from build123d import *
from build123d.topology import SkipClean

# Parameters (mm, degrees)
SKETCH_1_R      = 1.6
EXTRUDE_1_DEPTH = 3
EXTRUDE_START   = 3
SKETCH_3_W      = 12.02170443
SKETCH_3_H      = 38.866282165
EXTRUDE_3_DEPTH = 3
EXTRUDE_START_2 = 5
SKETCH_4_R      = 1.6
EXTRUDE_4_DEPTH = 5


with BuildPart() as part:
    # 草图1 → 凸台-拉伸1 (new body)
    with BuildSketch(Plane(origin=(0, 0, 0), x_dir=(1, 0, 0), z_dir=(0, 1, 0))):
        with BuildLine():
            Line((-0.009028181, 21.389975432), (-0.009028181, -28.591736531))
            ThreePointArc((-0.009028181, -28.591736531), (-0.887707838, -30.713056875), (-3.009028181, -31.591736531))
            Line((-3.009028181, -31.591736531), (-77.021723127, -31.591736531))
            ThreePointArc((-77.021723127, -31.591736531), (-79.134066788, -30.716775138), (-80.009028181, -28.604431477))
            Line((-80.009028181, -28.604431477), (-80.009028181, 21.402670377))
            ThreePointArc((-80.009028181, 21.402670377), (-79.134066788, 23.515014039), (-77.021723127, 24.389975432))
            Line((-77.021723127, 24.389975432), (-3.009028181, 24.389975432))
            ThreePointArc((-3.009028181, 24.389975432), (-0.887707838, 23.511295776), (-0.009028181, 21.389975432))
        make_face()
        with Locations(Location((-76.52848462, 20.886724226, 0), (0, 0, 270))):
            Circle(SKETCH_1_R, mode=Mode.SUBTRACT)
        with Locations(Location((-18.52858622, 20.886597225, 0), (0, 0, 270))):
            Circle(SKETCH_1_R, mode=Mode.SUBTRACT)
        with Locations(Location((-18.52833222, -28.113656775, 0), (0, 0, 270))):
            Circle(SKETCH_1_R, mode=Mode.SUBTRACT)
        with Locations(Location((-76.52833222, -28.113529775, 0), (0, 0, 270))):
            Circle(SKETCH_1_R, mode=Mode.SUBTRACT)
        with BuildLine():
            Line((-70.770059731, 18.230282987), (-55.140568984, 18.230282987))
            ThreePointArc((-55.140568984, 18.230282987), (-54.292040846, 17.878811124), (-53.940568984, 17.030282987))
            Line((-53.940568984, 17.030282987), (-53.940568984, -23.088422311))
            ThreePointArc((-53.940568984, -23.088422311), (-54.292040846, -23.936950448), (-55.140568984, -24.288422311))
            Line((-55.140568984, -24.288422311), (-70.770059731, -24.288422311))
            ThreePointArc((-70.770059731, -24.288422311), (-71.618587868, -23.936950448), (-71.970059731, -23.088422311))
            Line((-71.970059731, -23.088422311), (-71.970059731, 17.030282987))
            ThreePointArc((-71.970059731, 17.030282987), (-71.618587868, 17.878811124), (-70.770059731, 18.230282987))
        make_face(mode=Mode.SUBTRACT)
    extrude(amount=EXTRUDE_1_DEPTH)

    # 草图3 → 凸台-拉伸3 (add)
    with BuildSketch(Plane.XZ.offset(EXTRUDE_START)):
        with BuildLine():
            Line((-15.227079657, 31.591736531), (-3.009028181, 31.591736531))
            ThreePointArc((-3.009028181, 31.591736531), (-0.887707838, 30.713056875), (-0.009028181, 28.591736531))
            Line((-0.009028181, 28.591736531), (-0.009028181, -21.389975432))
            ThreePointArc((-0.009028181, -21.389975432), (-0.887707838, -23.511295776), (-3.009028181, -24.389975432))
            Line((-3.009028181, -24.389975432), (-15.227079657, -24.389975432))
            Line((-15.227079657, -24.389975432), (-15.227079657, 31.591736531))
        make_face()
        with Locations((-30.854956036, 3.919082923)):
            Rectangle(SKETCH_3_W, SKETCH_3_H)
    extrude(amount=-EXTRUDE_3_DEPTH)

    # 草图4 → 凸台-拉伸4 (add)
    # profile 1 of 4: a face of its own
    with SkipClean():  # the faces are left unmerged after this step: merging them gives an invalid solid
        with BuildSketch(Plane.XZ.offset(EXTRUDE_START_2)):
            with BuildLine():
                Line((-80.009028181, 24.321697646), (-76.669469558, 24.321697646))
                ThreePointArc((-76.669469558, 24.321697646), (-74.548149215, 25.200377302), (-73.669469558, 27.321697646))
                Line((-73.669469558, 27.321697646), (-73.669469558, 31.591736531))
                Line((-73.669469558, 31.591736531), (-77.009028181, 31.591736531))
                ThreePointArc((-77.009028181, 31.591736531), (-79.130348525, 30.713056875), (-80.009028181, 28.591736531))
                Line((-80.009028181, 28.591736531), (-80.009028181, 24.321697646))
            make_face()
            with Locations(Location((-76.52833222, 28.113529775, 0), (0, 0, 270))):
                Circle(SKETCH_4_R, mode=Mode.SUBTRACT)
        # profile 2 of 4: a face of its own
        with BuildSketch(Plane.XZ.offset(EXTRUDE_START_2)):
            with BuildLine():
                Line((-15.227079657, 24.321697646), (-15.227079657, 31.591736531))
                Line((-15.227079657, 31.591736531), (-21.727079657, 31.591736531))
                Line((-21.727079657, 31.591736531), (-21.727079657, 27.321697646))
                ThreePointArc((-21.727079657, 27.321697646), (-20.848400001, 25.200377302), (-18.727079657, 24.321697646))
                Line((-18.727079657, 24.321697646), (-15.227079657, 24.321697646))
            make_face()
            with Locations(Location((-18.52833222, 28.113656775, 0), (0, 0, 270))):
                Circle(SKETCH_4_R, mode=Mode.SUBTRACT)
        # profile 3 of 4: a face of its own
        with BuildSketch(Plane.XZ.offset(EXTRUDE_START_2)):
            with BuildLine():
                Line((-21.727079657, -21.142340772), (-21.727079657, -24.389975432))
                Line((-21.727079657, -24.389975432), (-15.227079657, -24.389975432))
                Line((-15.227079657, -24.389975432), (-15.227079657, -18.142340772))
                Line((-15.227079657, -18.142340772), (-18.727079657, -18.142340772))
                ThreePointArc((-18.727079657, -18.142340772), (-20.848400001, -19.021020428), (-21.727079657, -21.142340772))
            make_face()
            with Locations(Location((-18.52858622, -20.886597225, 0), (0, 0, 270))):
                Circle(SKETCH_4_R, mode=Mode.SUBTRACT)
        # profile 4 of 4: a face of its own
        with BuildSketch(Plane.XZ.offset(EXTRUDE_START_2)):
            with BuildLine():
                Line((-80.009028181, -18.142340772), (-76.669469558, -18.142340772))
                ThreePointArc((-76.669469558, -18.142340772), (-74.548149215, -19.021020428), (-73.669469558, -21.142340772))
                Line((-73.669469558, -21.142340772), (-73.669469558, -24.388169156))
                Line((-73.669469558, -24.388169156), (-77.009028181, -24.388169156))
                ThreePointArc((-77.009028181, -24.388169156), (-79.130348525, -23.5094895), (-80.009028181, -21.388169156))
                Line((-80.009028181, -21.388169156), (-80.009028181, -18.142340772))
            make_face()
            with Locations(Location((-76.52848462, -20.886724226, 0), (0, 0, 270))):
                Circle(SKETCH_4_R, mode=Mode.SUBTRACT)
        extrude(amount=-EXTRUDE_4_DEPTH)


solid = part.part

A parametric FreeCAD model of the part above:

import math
import FreeCAD as App
import Part
import Sketcher
Q = App.Units.Quantity

doc = App.newDocument("Part")
body = doc.addObject("PartDesign::Body", "Body")

# Sketch on XZ plane
sketch1 = body.newObject("Sketcher::SketchObject", "Sketch")
sketch1.AttachmentSupport = (doc.getObject("XZ_Plane"), [""])
sketch1.MapMode = "FlatFace"
sketch1.addGeometry([
    Part.LineSegment(App.Vector(-0.009028, 28.591737, 0), App.Vector(-0.009028, -21.389975, 0)),  # 0
    Part.ArcOfCircle(Part.Circle(App.Vector(-3.009028, -21.389975, 0), App.Vector(0, 0, 1), 3), math.radians(-90), math.radians(0)),  # 1
    Part.LineSegment(App.Vector(-3.009028, -24.389975, 0), App.Vector(-77.021723, -24.389975, 0)),  # 2
    Part.ArcOfCircle(Part.Circle(App.Vector(-77.021723, -21.40267, 0), App.Vector(0, 0, 1), 2.987305), math.radians(180), math.radians(270)),  # 3
    Part.LineSegment(App.Vector(-80.009028, -21.40267, 0), App.Vector(-80.009028, 28.604431, 0)),  # 4
    Part.ArcOfCircle(Part.Circle(App.Vector(-77.021723, 28.604431, 0), App.Vector(0, 0, 1), 2.987305), math.radians(90), math.radians(180)),  # 5
    Part.LineSegment(App.Vector(-77.021723, 31.591737, 0), App.Vector(-3.009028, 31.591737, 0)),  # 6
    Part.ArcOfCircle(Part.Circle(App.Vector(-3.009028, 28.591737, 0), App.Vector(0, 0, 1), 3), math.radians(0), math.radians(90)),  # 7
    Part.Circle(App.Vector(-18.528332, 28.113657, 0), App.Vector(0, 0, 1), 1.6),  # 8
    Part.Circle(App.Vector(-76.528332, 28.11353, 0), App.Vector(0, 0, 1), 1.6),  # 9
    Part.Circle(App.Vector(-18.528586, -20.886597, 0), App.Vector(0, 0, 1), 1.6),  # 10
    Part.LineSegment(App.Vector(-70.77006, -18.230283, 0), App.Vector(-55.140569, -18.230283, 0)),  # 11
    Part.ArcOfCircle(Part.Circle(App.Vector(-55.140569, -17.030283, 0), App.Vector(0, 0, 1), 1.2), math.radians(-90), math.radians(0)),  # 12
    Part.LineSegment(App.Vector(-53.940569, -17.030283, 0), App.Vector(-53.940569, 23.088422, 0)),  # 13
    Part.ArcOfCircle(Part.Circle(App.Vector(-55.140569, 23.088422, 0), App.Vector(0, 0, 1), 1.2), math.radians(0), math.radians(90)),  # 14
    Part.LineSegment(App.Vector(-55.140569, 24.288422, 0), App.Vector(-70.77006, 24.288422, 0)),  # 15
    Part.ArcOfCircle(Part.Circle(App.Vector(-70.77006, 23.088422, 0), App.Vector(0, 0, 1), 1.2), math.radians(90), math.radians(180)),  # 16
    Part.LineSegment(App.Vector(-71.97006, 23.088422, 0), App.Vector(-71.97006, -17.030283, 0)),  # 17
    Part.ArcOfCircle(Part.Circle(App.Vector(-70.77006, -17.030283, 0), App.Vector(0, 0, 1), 1.2), math.radians(-180), math.radians(-90)),  # 18
    Part.Circle(App.Vector(-76.528485, -20.886724, 0), App.Vector(0, 0, 1), 1.6),  # 19
], False)
sketch1.addConstraint([
    Sketcher.Constraint("Tangent", 0, 2, 1, 2),
    Sketcher.Constraint("Tangent", 1, 1, 2, 1),
    Sketcher.Constraint("Tangent", 2, 2, 3, 2),
    Sketcher.Constraint("Tangent", 3, 1, 4, 1),
    Sketcher.Constraint("Tangent", 4, 2, 5, 2),
    Sketcher.Constraint("Tangent", 5, 1, 6, 1),
    Sketcher.Constraint("Tangent", 6, 2, 7, 2),
    Sketcher.Constraint("Tangent", 7, 1, 0, 1),
    Sketcher.Constraint("Tangent", 11, 2, 12, 1),
    Sketcher.Constraint("Tangent", 12, 2, 13, 1),
    Sketcher.Constraint("Tangent", 13, 2, 14, 1),
    Sketcher.Constraint("Tangent", 14, 2, 15, 1),
    Sketcher.Constraint("Tangent", 15, 2, 16, 1),
    Sketcher.Constraint("Tangent", 16, 2, 17, 1),
    Sketcher.Constraint("Tangent", 17, 2, 18, 1),
    Sketcher.Constraint("Tangent", 18, 2, 11, 1),
    Sketcher.Constraint("Vertical", 0),
    Sketcher.Constraint("Horizontal", 2),
    Sketcher.Constraint("Vertical", 4),
    Sketcher.Constraint("Horizontal", 6),
    Sketcher.Constraint("Horizontal", 11),
    Sketcher.Constraint("Vertical", 13),
    Sketcher.Constraint("Horizontal", 15),
    Sketcher.Constraint("Vertical", 17),
    Sketcher.Constraint("Equal", 3, 5),
    Sketcher.Constraint("Equal", 1, 7),
    Sketcher.Constraint("Equal", 8, 9),
    Sketcher.Constraint("Equal", 9, 10),
    Sketcher.Constraint("Equal", 12, 14),
    Sketcher.Constraint("Equal", 14, 16),
    Sketcher.Constraint("Equal", 16, 18),
    Sketcher.Constraint("Equal", 10, 19),
    Sketcher.Constraint("Radius", 1, Q("3 mm")),
    Sketcher.Constraint("Diameter", 8, Q("3.2 mm")),
    Sketcher.Constraint("Radius", 12, Q("1.2 mm")),
    Sketcher.Constraint("DistanceX", 9, 3, 8, 3, Q("58 mm")),
    Sketcher.Constraint("DistanceY", 4, 1, 4, 2, Q("50.007102 mm")),
    Sketcher.Constraint("Radius", 3, Q("2.987305 mm")),
    Sketcher.Constraint("DistanceX", 11, 1, 11, 2, Q("15.629491 mm")),
    Sketcher.Constraint("DistanceY", 9, 3, 5, 3, Q("0.490902 mm")),
    Sketcher.Constraint("DistanceX", 2, 2, 2, 1, Q("74.012695 mm")),
    Sketcher.Constraint("DistanceY", 13, 1, 13, 2, Q("40.118705 mm")),
    Sketcher.Constraint("DistanceX", 1, 3, -1, 1, Q("3.009028 mm")),
    Sketcher.Constraint("DistanceY", 3, 3, -1, 1, Q("21.40267 mm")),
    Sketcher.Constraint("DistanceX", 12, 3, -1, 1, Q("55.140569 mm")),
    Sketcher.Constraint("DistanceY", 8, 3, 7, 3, Q("0.47808 mm")),
    Sketcher.Constraint("DistanceX", 5, 3, 8, 3, Q("58.493391 mm")),
    Sketcher.Constraint("DistanceX", 10, 3, 1, 3, Q("15.519558 mm")),
    Sketcher.Constraint("DistanceY", 1, 3, 10, 3, Q("0.503378 mm")),
    Sketcher.Constraint("DistanceY", 14, 3, 5, 3, Q("5.516009 mm")),
    Sketcher.Constraint("DistanceX", 3, 3, 19, 3, Q("0.493239 mm")),
    Sketcher.Constraint("DistanceY", 19, 3, 18, 3, Q("3.856441 mm")),
])
pad1 = body.newObject("PartDesign::Pad", "Pad")
pad1.Profile = sketch1
pad1.Length = 3
pad1.Reversed = True

# Sketch on XZ plane
sketch2 = body.newObject("Sketcher::SketchObject", "Sketch001")
sketch2.AttachmentSupport = (doc.getObject("XZ_Plane"), [""])
sketch2.MapMode = "FlatFace"
sketch2.AttachmentOffset = App.Placement(App.Vector(0, 0, 3), App.Rotation())
sketch2.addGeometry([
    Part.LineSegment(App.Vector(-3.009028, 31.591737, 0), App.Vector(-15.22708, 31.591737, 0)),  # 0
    Part.LineSegment(App.Vector(-15.22708, 31.591737, 0), App.Vector(-15.22708, -24.389975, 0)),  # 1
    Part.LineSegment(App.Vector(-15.22708, -24.389975, 0), App.Vector(-3.009028, -24.389975, 0)),  # 2
    Part.ArcOfCircle(Part.Circle(App.Vector(-3.009028, -21.389975, 0), App.Vector(0, 0, 1), 3), math.radians(-90), math.radians(0)),  # 3
    Part.LineSegment(App.Vector(-0.009028, -21.389975, 0), App.Vector(-0.009028, 28.591737, 0)),  # 4
    Part.ArcOfCircle(Part.Circle(App.Vector(-3.009028, 28.591737, 0), App.Vector(0, 0, 1), 3), math.radians(0), math.radians(90)),  # 5
    Part.LineSegment(App.Vector(-36.865808, 23.352224, 0), App.Vector(-36.865808, -15.514058, 0)),  # 6
    Part.LineSegment(App.Vector(-36.865808, -15.514058, 0), App.Vector(-24.844104, -15.514058, 0)),  # 7
    Part.LineSegment(App.Vector(-24.844104, -15.514058, 0), App.Vector(-24.844104, 23.352224, 0)),  # 8
    Part.LineSegment(App.Vector(-24.844104, 23.352224, 0), App.Vector(-36.865808, 23.352224, 0)),  # 9
], False)
sketch2.addConstraint([
    Sketcher.Constraint("Coincident", 0, 2, 1, 1),
    Sketcher.Constraint("Coincident", 1, 2, 2, 1),
    Sketcher.Constraint("Tangent", 2, 2, 3, 1),
    Sketcher.Constraint("Tangent", 3, 2, 4, 1),
    Sketcher.Constraint("Tangent", 4, 2, 5, 1),
    Sketcher.Constraint("Tangent", 5, 2, 0, 1),
    Sketcher.Constraint("Coincident", 6, 2, 7, 1),
    Sketcher.Constraint("Coincident", 7, 2, 8, 1),
    Sketcher.Constraint("Coincident", 8, 2, 9, 1),
    Sketcher.Constraint("Coincident", 9, 2, 6, 1),
    Sketcher.Constraint("Horizontal", 0),
    Sketcher.Constraint("Vertical", 1),
    Sketcher.Constraint("Horizontal", 2),
    Sketcher.Constraint("Vertical", 4),
    Sketcher.Constraint("Vertical", 6),
    Sketcher.Constraint("Horizontal", 7),
    Sketcher.Constraint("Vertical", 8),
    Sketcher.Constraint("Horizontal", 9),
    Sketcher.Constraint("Equal", 3, 5),
    Sketcher.Constraint("Radius", 3, Q("3 mm")),
    Sketcher.Constraint("DistanceX", 0, 2, 0, 1, Q("12.218051 mm")),
    Sketcher.Constraint("DistanceY", 1, 2, 1, 1, Q("55.981712 mm")),
    Sketcher.Constraint("DistanceX", 7, 1, 7, 2, Q("12.021704 mm")),
    Sketcher.Constraint("DistanceY", 6, 2, 6, 1, Q("38.866282 mm")),
    Sketcher.Constraint("DistanceX", 3, 3, -1, 1, Q("3.009028 mm")),
    Sketcher.Constraint("DistanceX", 6, 2, -1, 1, Q("36.865808 mm")),
    Sketcher.Constraint("DistanceY", 6, 2, -1, 1, Q("15.514058 mm")),
    Sketcher.Constraint("DistanceY", 3, 3, -1, 1, Q("21.389975 mm")),
])
pad2 = body.newObject("PartDesign::Pad", "Pad001")
pad2.Profile = sketch2
pad2.Length = 3
pad2.Reversed = True

# Sketch on XZ plane
sketch3 = body.newObject("Sketcher::SketchObject", "Sketch002")
sketch3.AttachmentSupport = (doc.getObject("XZ_Plane"), [""])
sketch3.MapMode = "FlatFace"
sketch3.AttachmentOffset = App.Placement(App.Vector(0, 0, 5), App.Rotation())
sketch3.addGeometry([
    Part.LineSegment(App.Vector(-80.009028, 24.321698, 0), App.Vector(-76.66947, 24.321698, 0)),  # 0
    Part.ArcOfCircle(Part.Circle(App.Vector(-76.66947, 27.321698, 0), App.Vector(0, 0, 1), 3), math.radians(-90), math.radians(0)),  # 1
    Part.LineSegment(App.Vector(-73.66947, 27.321698, 0), App.Vector(-73.66947, 31.591737, 0)),  # 2
    Part.LineSegment(App.Vector(-73.66947, 31.591737, 0), App.Vector(-77.009028, 31.591737, 0)),  # 3
    Part.ArcOfCircle(Part.Circle(App.Vector(-77.009028, 28.591737, 0), App.Vector(0, 0, 1), 3), math.radians(90), math.radians(180)),  # 4
    Part.LineSegment(App.Vector(-80.009028, 28.591737, 0), App.Vector(-80.009028, 24.321698, 0)),  # 5
    Part.Circle(App.Vector(-76.528332, 28.11353, 0), App.Vector(0, 0, 1), 1.6),  # 6
    Part.LineSegment(App.Vector(-15.22708, 24.321698, 0), App.Vector(-15.22708, 31.591737, 0)),  # 7
    Part.LineSegment(App.Vector(-15.22708, 31.591737, 0), App.Vector(-21.72708, 31.591737, 0)),  # 8
    Part.LineSegment(App.Vector(-21.72708, 31.591737, 0), App.Vector(-21.72708, 27.321698, 0)),  # 9
    Part.ArcOfCircle(Part.Circle(App.Vector(-18.72708, 27.321698, 0), App.Vector(0, 0, 1), 3), math.radians(180), math.radians(270)),  # 10
    Part.LineSegment(App.Vector(-18.72708, 24.321698, 0), App.Vector(-15.22708, 24.321698, 0)),  # 11
    Part.Circle(App.Vector(-18.528332, 28.113657, 0), App.Vector(0, 0, 1), 1.6),  # 12
    Part.LineSegment(App.Vector(-21.72708, -21.142341, 0), App.Vector(-21.72708, -24.389975, 0)),  # 13
    Part.LineSegment(App.Vector(-21.72708, -24.389975, 0), App.Vector(-15.22708, -24.389975, 0)),  # 14
    Part.LineSegment(App.Vector(-15.22708, -24.389975, 0), App.Vector(-15.22708, -18.142341, 0)),  # 15
    Part.LineSegment(App.Vector(-15.22708, -18.142341, 0), App.Vector(-18.72708, -18.142341, 0)),  # 16
    Part.ArcOfCircle(Part.Circle(App.Vector(-18.72708, -21.142341, 0), App.Vector(0, 0, 1), 3), math.radians(90), math.radians(180)),  # 17
    Part.Circle(App.Vector(-18.528586, -20.886597, 0), App.Vector(0, 0, 1), 1.6),  # 18
    Part.LineSegment(App.Vector(-76.66947, -18.142341, 0), App.Vector(-80.009028, -18.142341, 0)),  # 19
    Part.LineSegment(App.Vector(-80.009028, -18.142341, 0), App.Vector(-80.009028, -21.388169, 0)),  # 20
    Part.ArcOfCircle(Part.Circle(App.Vector(-77.009028, -21.388169, 0), App.Vector(0, 0, 1), 3), math.radians(180), math.radians(270)),  # 21
    Part.LineSegment(App.Vector(-77.009028, -24.388169, 0), App.Vector(-73.66947, -24.388169, 0)),  # 22
    Part.LineSegment(App.Vector(-73.66947, -24.388169, 0), App.Vector(-73.66947, -21.142341, 0)),  # 23
    Part.ArcOfCircle(Part.Circle(App.Vector(-76.66947, -21.142341, 0), App.Vector(0, 0, 1), 3), math.radians(0), math.radians(90)),  # 24
    Part.Circle(App.Vector(-76.528485, -20.886724, 0), App.Vector(0, 0, 1), 1.6),  # 25
], False)
sketch3.addConstraint([
    Sketcher.Constraint("Tangent", 0, 2, 1, 1),
    Sketcher.Constraint("Tangent", 1, 2, 2, 1),
    Sketcher.Constraint("Coincident", 2, 2, 3, 1),
    Sketcher.Constraint("Tangent", 3, 2, 4, 1),
    Sketcher.Constraint("Tangent", 4, 2, 5, 1),
    Sketcher.Constraint("Coincident", 5, 2, 0, 1),
    Sketcher.Constraint("Coincident", 7, 2, 8, 1),
    Sketcher.Constraint("Coincident", 8, 2, 9, 1),
    Sketcher.Constraint("Tangent", 9, 2, 10, 1),
    Sketcher.Constraint("Tangent", 10, 2, 11, 1),
    Sketcher.Constraint("Coincident", 11, 2, 7, 1),
    Sketcher.Constraint("Coincident", 13, 2, 14, 1),
    Sketcher.Constraint("Coincident", 14, 2, 15, 1),
    Sketcher.Constraint("Coincident", 15, 2, 16, 1),
    Sketcher.Constraint("Tangent", 16, 2, 17, 1),
    Sketcher.Constraint("Tangent", 17, 2, 13, 1),
    Sketcher.Constraint("Coincident", 19, 2, 20, 1),
    Sketcher.Constraint("Tangent", 20, 2, 21, 1),
    Sketcher.Constraint("Tangent", 21, 2, 22, 1),
    Sketcher.Constraint("Coincident", 22, 2, 23, 1),
    Sketcher.Constraint("Tangent", 23, 2, 24, 1),
    Sketcher.Constraint("Tangent", 24, 2, 19, 1),
    Sketcher.Constraint("Horizontal", 0),
    Sketcher.Constraint("Vertical", 2),
    Sketcher.Constraint("Horizontal", 3),
    Sketcher.Constraint("Vertical", 5),
    Sketcher.Constraint("Vertical", 7),
    Sketcher.Constraint("Horizontal", 8),
    Sketcher.Constraint("Vertical", 9),
    Sketcher.Constraint("Horizontal", 11),
    Sketcher.Constraint("Vertical", 13),
    Sketcher.Constraint("Horizontal", 14),
    Sketcher.Constraint("Vertical", 15),
    Sketcher.Constraint("Horizontal", 16),
    Sketcher.Constraint("Horizontal", 19),
    Sketcher.Constraint("Vertical", 20),
    Sketcher.Constraint("Horizontal", 22),
    Sketcher.Constraint("Vertical", 23),
    Sketcher.Constraint("Equal", 1, 4),
    Sketcher.Constraint("Equal", 4, 10),
    Sketcher.Constraint("Equal", 6, 12),
    Sketcher.Constraint("Equal", 10, 17),
    Sketcher.Constraint("Equal", 12, 18),
    Sketcher.Constraint("Equal", 17, 21),
    Sketcher.Constraint("Equal", 21, 24),
    Sketcher.Constraint("Equal", 18, 25),
    Sketcher.Constraint("Horizontal", 1, 3, 10, 3),
    Sketcher.Constraint("Horizontal", 17, 3, 24, 3),
    Sketcher.Constraint("Horizontal", 3, 2, 7, 2),
    Sketcher.Constraint("Vertical", 10, 3, 17, 3),
    Sketcher.Constraint("Vertical", 4, 3, 21, 3),
    Sketcher.Constraint("Vertical", 1, 3, 24, 3),
    Sketcher.Constraint("Vertical", 11, 2, 14, 2),
    Sketcher.Constraint("Radius", 1, Q("3 mm")),
    Sketcher.Constraint("Diameter", 6, Q("3.2 mm")),
    Sketcher.Constraint("DistanceX", 8, 2, 8, 1, Q("6.5 mm")),
    Sketcher.Constraint("DistanceX", 6, 3, 12, 3, Q("58 mm")),
    Sketcher.Constraint("DistanceX", 0, 1, 0, 2, Q("3.339559 mm")),
    Sketcher.Constraint("DistanceY", 2, 1, 2, 2, Q("4.270039 mm")),
    Sketcher.Constraint("DistanceY", 20, 2, 20, 1, Q("3.245828 mm")),
    Sketcher.Constraint("DistanceY", 21, 3, 6, 3, Q("49.501699 mm")),
    Sketcher.Constraint("DistanceY", 13, 2, 13, 1, Q("3.247635 mm")),
    Sketcher.Constraint("DistanceX", 1, 3, -1, 1, Q("76.66947 mm")),
    Sketcher.Constraint("DistanceY", -1, 1, 6, 3, Q("28.11353 mm")),
    Sketcher.Constraint("DistanceX", 10, 3, -1, 1, Q("18.72708 mm")),
    Sketcher.Constraint("DistanceY", 10, 3, 12, 3, Q("0.791959 mm")),
    Sketcher.Constraint("DistanceY", 17, 3, 10, 3, Q("48.464038 mm")),
    Sketcher.Constraint("DistanceX", 21, 3, 18, 3, Q("58.480442 mm")),
    Sketcher.Constraint("DistanceY", 21, 3, 18, 3, Q("0.501572 mm")),
    Sketcher.Constraint("DistanceY", 25, 3, 1, 3, Q("48.208422 mm")),
    Sketcher.Constraint("DistanceX", 6, 3, -1, 1, Q("76.528332 mm")),
    Sketcher.Constraint("DistanceX", 25, 3, -1, 1, Q("76.528485 mm")),
])
pad3 = body.newObject("PartDesign::Pad", "Pad002")
pad3.Profile = sketch3
pad3.Length = 5
pad3.Reversed = True

doc.recompute()
